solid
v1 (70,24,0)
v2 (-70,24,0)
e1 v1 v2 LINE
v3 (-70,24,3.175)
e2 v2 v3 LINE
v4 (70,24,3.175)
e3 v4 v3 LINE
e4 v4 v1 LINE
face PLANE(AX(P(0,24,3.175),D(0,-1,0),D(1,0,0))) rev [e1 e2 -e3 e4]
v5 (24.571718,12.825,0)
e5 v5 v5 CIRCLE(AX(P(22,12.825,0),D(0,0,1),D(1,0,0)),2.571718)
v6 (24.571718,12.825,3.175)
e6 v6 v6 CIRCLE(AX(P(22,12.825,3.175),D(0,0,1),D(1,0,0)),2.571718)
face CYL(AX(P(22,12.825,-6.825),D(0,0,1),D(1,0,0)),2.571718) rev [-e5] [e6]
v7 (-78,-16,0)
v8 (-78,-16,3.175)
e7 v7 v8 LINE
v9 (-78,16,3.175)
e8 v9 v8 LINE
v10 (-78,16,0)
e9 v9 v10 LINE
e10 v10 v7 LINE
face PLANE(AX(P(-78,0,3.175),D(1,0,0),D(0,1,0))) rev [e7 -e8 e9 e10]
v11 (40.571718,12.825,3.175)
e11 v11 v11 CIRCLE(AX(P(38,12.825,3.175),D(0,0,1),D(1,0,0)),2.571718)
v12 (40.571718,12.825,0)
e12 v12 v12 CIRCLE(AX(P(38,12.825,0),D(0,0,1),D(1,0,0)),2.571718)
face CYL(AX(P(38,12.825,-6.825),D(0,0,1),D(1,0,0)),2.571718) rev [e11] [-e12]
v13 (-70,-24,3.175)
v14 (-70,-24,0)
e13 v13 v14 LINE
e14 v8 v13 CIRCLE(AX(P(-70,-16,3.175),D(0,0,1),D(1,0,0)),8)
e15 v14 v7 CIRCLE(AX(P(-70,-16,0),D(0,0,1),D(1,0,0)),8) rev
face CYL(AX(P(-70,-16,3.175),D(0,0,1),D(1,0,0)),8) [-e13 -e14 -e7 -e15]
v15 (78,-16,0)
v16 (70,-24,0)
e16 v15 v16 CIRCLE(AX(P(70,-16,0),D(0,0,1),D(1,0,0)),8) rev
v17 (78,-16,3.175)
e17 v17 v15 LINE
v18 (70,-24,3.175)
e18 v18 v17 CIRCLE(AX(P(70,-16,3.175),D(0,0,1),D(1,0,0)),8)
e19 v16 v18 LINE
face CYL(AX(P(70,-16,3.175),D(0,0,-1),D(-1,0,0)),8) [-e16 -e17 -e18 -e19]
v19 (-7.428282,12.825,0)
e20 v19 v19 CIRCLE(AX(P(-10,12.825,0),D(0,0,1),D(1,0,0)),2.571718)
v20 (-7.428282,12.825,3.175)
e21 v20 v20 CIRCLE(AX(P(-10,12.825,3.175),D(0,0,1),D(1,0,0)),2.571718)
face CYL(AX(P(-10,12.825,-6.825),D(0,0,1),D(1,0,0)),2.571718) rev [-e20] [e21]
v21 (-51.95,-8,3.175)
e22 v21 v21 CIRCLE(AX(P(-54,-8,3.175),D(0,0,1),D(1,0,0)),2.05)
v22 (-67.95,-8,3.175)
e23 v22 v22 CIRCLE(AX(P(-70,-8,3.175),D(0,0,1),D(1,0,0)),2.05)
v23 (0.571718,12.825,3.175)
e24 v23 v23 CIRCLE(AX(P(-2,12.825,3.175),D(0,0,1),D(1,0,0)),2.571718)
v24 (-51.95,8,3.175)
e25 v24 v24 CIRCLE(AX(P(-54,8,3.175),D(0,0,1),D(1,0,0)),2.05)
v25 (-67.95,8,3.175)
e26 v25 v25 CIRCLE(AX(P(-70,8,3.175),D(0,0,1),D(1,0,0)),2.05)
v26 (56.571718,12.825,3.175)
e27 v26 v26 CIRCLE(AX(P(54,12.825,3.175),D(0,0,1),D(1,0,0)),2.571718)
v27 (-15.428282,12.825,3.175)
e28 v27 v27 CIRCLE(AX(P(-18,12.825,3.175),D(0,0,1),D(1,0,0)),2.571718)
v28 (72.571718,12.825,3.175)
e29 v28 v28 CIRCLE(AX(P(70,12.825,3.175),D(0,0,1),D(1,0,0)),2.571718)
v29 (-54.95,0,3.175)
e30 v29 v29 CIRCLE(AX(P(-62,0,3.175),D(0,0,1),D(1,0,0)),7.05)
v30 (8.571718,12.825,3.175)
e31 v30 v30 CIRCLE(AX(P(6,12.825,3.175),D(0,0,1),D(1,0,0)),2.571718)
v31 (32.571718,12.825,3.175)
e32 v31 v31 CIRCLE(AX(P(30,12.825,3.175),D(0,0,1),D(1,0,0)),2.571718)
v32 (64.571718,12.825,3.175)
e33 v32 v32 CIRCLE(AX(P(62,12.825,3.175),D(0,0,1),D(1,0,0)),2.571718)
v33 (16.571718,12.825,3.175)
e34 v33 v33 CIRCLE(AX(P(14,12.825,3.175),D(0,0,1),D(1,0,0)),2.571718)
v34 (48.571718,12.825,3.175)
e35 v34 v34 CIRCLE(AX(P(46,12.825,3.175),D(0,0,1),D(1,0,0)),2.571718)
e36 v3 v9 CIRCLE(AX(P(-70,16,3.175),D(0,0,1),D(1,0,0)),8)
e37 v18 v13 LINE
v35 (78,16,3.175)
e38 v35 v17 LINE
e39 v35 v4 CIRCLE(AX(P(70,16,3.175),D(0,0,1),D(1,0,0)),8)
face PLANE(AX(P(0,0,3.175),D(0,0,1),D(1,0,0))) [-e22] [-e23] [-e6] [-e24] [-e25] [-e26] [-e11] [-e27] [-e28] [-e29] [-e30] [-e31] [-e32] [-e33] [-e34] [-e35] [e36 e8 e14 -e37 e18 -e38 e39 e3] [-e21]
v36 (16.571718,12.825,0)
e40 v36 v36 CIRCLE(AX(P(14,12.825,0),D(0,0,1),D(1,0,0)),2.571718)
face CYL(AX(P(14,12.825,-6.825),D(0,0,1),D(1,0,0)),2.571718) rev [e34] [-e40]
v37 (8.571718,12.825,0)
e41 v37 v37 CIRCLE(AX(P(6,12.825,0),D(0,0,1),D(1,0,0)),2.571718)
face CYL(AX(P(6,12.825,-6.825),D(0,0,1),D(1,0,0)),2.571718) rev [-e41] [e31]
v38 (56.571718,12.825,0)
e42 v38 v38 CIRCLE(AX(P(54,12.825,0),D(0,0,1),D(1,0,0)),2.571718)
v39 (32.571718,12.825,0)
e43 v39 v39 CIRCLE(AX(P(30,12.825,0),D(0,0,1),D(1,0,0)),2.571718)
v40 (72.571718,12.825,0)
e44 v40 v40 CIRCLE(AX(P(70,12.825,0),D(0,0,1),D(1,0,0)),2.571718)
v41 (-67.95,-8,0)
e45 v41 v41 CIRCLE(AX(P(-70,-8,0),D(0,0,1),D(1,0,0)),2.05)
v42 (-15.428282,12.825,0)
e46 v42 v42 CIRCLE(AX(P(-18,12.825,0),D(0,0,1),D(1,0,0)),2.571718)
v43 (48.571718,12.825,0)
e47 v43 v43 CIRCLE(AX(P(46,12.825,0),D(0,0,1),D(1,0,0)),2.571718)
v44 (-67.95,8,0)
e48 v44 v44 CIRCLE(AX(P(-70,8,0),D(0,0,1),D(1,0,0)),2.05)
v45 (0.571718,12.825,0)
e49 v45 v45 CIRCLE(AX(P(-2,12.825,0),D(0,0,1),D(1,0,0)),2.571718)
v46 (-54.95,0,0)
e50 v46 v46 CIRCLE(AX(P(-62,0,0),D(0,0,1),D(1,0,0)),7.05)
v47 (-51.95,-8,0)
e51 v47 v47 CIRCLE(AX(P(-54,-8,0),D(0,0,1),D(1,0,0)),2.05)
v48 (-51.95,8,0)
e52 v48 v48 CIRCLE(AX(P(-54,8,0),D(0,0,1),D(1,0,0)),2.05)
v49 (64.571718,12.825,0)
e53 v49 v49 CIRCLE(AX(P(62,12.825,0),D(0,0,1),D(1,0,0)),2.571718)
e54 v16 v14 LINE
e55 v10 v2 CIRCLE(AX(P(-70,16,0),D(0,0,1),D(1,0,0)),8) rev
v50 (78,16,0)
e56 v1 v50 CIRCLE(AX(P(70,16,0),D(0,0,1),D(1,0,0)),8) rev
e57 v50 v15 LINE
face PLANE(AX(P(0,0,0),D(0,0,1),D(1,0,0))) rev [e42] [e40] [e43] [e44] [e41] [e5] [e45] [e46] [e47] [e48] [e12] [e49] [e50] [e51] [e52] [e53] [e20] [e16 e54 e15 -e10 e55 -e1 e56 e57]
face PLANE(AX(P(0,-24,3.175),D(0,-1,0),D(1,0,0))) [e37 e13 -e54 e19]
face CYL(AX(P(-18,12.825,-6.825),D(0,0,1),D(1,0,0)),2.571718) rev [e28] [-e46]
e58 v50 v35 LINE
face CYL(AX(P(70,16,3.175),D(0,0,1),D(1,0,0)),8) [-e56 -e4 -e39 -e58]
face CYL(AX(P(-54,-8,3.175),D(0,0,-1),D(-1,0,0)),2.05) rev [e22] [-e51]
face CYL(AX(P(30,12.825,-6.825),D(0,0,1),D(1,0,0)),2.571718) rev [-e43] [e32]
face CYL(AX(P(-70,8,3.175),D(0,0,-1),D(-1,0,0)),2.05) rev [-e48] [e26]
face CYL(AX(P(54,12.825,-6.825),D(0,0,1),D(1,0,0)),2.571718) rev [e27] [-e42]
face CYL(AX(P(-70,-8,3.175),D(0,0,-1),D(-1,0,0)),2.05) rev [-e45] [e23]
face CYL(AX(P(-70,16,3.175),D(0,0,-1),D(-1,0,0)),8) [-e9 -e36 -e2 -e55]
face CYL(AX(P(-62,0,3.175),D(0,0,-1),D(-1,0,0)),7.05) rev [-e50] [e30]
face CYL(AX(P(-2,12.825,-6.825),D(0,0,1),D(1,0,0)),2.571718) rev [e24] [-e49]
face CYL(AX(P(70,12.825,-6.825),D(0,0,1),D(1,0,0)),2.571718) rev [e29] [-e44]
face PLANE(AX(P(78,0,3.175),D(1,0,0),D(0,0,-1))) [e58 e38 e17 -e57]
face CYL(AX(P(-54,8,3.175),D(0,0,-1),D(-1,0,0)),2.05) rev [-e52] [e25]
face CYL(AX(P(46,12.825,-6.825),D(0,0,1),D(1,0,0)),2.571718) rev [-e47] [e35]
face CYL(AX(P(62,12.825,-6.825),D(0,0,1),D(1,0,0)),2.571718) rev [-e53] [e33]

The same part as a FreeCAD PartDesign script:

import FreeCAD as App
import Part
import Sketcher
from FreeCAD import Vector
Q = App.Units.Quantity


def edges_at(feature, points):
    """Names of the edges that pass closest to the given points."""
    edges = feature.Shape.Edges
    near = lambda p: min(range(len(edges)), key=lambda i: edges[i].distToShape(Part.Vertex(*p))[0])
    return sorted({f"Edge{near(p) + 1}" for p in points})

doc = App.newDocument("Part")
params = doc.addObject("Spreadsheet::Sheet", "Params")
for row, (alias, value) in enumerate([
    ("sketch1_diameter", "4.1 mm"),
    ("sketch1_diameter2", "14.1 mm"),
    ("sketch1_width", "156 mm"),
    ("sketch1_height", "48 mm"),
    ("pad1_length", "3.175 mm"),
    ("fillet_radius", "8 mm"),
    ("pocket1_length", "10 mm"),
], start=1):
    params.set(f"A{row}", alias)
    params.set(f"B{row}", "=" + value)
    params.setAlias(f"B{row}", alias)

body = doc.addObject("PartDesign::Body", "Body")

sketch1 = body.newObject("Sketcher::SketchObject", "Sketch")
sketch1.AttachmentSupport = (doc.getObject("XY_Plane"), [""])
sketch1.MapMode = "FlatFace"
sketch1.addGeometry([
    Part.LineSegment(Vector(-78, 24, 0), Vector(-78, -24, 0)),
    Part.LineSegment(Vector(-78, -24, 0), Vector(78, -24, 0)),
    Part.LineSegment(Vector(78, -24, 0), Vector(78, 24, 0)),
    Part.LineSegment(Vector(78, 24, 0), Vector(-78, 24, 0)),
    Part.Circle(Vector(-70, -8, 0), Vector(0, 0, 1), 2),
    Part.Circle(Vector(-54, -8, 0), Vector(0, 0, 1), 2),
    Part.Circle(Vector(-70, 8, 0), Vector(0, 0, 1), 2),
    Part.Circle(Vector(-62, 0, 0), Vector(0, 0, 1), 7),
    Part.Circle(Vector(-54, 8, 0), Vector(0, 0, 1), 2),
], False)
sketch1.addConstraint([
    Sketcher.Constraint("Coincident", 0, 2, 1, 1),
    Sketcher.Constraint("Coincident", 1, 2, 2, 1),
    Sketcher.Constraint("Coincident", 2, 2, 3, 1),
    Sketcher.Constraint("Coincident", 3, 2, 0, 1),
    Sketcher.Constraint("Vertical", 0),
    Sketcher.Constraint("Horizontal", 1),
    Sketcher.Constraint("Vertical", 2),
    Sketcher.Constraint("Horizontal", 3),
    Sketcher.Constraint("Equal", 4, 5),
    Sketcher.Constraint("Equal", 5, 6),
    Sketcher.Constraint("Equal", 6, 8),
    Sketcher.Constraint("Symmetric", 0, 2, 2, 2, -1, 1),
    Sketcher.Constraint("Symmetric", 4, 3, 6, 3, -1),
    Sketcher.Constraint("Symmetric", 5, 3, 8, 3, -1),
    Sketcher.Constraint("PointOnObject", 7, 3, -1),
    Sketcher.Constraint("Horizontal", 4, 3, 5, 3),
    Sketcher.Constraint("Diameter", 4, Q("4.1 mm")),
    Sketcher.Constraint("Diameter", 7, Q("14.1 mm")),
    Sketcher.Constraint("DistanceX", 1, 1, 1, 2, Q("156 mm")),
    Sketcher.Constraint("DistanceY", 0, 2, 0, 1, Q("48 mm")),
    Sketcher.Constraint("DistanceX", 4, 3, -1, 1, Q("70 mm")),
    Sketcher.Constraint("DistanceY", 4, 3, -1, 1, Q("8 mm")),
    Sketcher.Constraint("DistanceX", 5, 3, -1, 1, Q("54 mm")),
    Sketcher.Constraint("DistanceX", 7, 3, -1, 1, Q("62 mm")),
])
sketch1.setExpression("Constraints[16]", "Params.sketch1_diameter")
sketch1.setExpression("Constraints[17]", "Params.sketch1_diameter2")
sketch1.setExpression("Constraints[18]", "Params.sketch1_width")
sketch1.setExpression("Constraints[19]", "Params.sketch1_height")
pad1 = body.newObject("PartDesign::Pad", "Pad")
pad1.Profile = sketch1
pad1.setExpression("Length", "Params.pad1_length")
doc.recompute()

fillet = body.newObject("PartDesign::Fillet", "Fillet")
fillet.Base = (pad1, edges_at(pad1, [
    (78, 24, 1.587),
    (78, -24, 1.587),
    (-78, -24, 1.587),
    (-78, 24, 1.587),
]))
fillet.setExpression("Radius", "Params.fillet_radius")

sketch2 = body.newObject("Sketcher::SketchObject", "Sketch001")
sketch2.AttachmentSupport = (doc.getObject("XY_Plane"), [""])
sketch2.MapMode = "FlatFace"
sketch2.AttachmentOffset = App.Placement(Vector(0, 0, 3.175), App.Rotation())
sketch2.addGeometry([
    Part.Circle(Vector(70, 12.8, 0), Vector(0, 0, 1), 2.6),
    Part.Circle(Vector(62, 12.8, 0), Vector(0, 0, 1), 2.6),
    Part.Circle(Vector(54, 12.8, 0), Vector(0, 0, 1), 2.6),
    Part.Circle(Vector(46, 12.8, 0), Vector(0, 0, 1), 2.6),
    Part.Circle(Vector(38, 12.8, 0), Vector(0, 0, 1), 2.6),
    Part.Circle(Vector(30, 12.8, 0), Vector(0, 0, 1), 2.6),
    Part.Circle(Vector(22, 12.8, 0), Vector(0, 0, 1), 2.6),
    Part.Circle(Vector(14, 12.8, 0), Vector(0, 0, 1), 2.6),
    Part.Circle(Vector(6, 12.8, 0), Vector(0, 0, 1), 2.6),
    Part.Circle(Vector(-2, 12.8, 0), Vector(0, 0, 1), 2.6),
    Part.Circle(Vector(-10, 12.8, 0), Vector(0, 0, 1), 2.6),
    Part.Circle(Vector(-18, 12.8, 0), Vector(0, 0, 1), 2.6),
], False)
sketch2.addConstraint([
    Sketcher.Constraint("Equal", 0, 1),
    Sketcher.Constraint("Equal", 1, 2),
    Sketcher.Constraint("Equal", 2, 3),
    Sketcher.Constraint("Equal", 3, 4),
    Sketcher.Constraint("Equal", 4, 5),
    Sketcher.Constraint("Equal", 5, 6),
    Sketcher.Constraint("Equal", 6, 7),
    Sketcher.Constraint("Equal", 7, 8),
    Sketcher.Constraint("Equal", 8, 9),
    Sketcher.Constraint("Equal", 9, 10),
    Sketcher.Constraint("Equal", 10, 11),
    Sketcher.Constraint("Horizontal", 0, 3, 1, 3),
    Sketcher.Constraint("Horizontal", 1, 3, 2, 3),
    Sketcher.Constraint("Horizontal", 2, 3, 3, 3),
    Sketcher.Constraint("Horizontal", 3, 3, 4, 3),
    Sketcher.Constraint("Horizontal", 4, 3, 5, 3),
    Sketcher.Constraint("Horizontal", 5, 3, 6, 3),
    Sketcher.Constraint("Horizontal", 6, 3, 7, 3),
    Sketcher.Constraint("Horizontal", 7, 3, 8, 3),
    Sketcher.Constraint("Horizontal", 8, 3, 9, 3),
    Sketcher.Constraint("Horizontal", 9, 3, 10, 3),
    Sketcher.Constraint("Horizontal", 10, 3, 11, 3),
    Sketcher.Constraint("DistanceX", -1, 1, 0, 3, Q("70 mm")),
    Sketcher.Constraint("DistanceX", -1, 1, 1, 3, Q("62 mm")),
    Sketcher.Constraint("DistanceX", -1, 1, 2, 3, Q("54 mm")),
    Sketcher.Constraint("DistanceX", -1, 1, 3, 3, Q("46 mm")),
    Sketcher.Constraint("DistanceX", -1, 1, 4, 3, Q("38 mm")),
    Sketcher.Constraint("DistanceX", -1, 1, 5, 3, Q("30 mm")),
    Sketcher.Constraint("DistanceX", -1, 1, 6, 3, Q("22 mm")),
    Sketcher.Constraint("DistanceX", -1, 1, 7, 3, Q("14 mm")),
    Sketcher.Constraint("DistanceX", -1, 1, 8, 3, Q("6 mm")),
    Sketcher.Constraint("DistanceX", 9, 3, -1, 1, Q("2 mm")),
    Sketcher.Constraint("DistanceX", 10, 3, -1, 1, Q("10 mm")),
    Sketcher.Constraint("DistanceX", 11, 3, -1, 1, Q("18 mm")),
    Sketcher.Constraint("Diameter", 0, Q("5.143435 mm")),
    Sketcher.Constraint("DistanceY", -1, 1, 0, 3, Q("12.825 mm")),
])
pocket1 = body.newObject("PartDesign::Pocket", "Pocket")
pocket1.Profile = sketch2
pocket1.setExpression("Length", "Params.pocket1_length")

doc.recompute()
